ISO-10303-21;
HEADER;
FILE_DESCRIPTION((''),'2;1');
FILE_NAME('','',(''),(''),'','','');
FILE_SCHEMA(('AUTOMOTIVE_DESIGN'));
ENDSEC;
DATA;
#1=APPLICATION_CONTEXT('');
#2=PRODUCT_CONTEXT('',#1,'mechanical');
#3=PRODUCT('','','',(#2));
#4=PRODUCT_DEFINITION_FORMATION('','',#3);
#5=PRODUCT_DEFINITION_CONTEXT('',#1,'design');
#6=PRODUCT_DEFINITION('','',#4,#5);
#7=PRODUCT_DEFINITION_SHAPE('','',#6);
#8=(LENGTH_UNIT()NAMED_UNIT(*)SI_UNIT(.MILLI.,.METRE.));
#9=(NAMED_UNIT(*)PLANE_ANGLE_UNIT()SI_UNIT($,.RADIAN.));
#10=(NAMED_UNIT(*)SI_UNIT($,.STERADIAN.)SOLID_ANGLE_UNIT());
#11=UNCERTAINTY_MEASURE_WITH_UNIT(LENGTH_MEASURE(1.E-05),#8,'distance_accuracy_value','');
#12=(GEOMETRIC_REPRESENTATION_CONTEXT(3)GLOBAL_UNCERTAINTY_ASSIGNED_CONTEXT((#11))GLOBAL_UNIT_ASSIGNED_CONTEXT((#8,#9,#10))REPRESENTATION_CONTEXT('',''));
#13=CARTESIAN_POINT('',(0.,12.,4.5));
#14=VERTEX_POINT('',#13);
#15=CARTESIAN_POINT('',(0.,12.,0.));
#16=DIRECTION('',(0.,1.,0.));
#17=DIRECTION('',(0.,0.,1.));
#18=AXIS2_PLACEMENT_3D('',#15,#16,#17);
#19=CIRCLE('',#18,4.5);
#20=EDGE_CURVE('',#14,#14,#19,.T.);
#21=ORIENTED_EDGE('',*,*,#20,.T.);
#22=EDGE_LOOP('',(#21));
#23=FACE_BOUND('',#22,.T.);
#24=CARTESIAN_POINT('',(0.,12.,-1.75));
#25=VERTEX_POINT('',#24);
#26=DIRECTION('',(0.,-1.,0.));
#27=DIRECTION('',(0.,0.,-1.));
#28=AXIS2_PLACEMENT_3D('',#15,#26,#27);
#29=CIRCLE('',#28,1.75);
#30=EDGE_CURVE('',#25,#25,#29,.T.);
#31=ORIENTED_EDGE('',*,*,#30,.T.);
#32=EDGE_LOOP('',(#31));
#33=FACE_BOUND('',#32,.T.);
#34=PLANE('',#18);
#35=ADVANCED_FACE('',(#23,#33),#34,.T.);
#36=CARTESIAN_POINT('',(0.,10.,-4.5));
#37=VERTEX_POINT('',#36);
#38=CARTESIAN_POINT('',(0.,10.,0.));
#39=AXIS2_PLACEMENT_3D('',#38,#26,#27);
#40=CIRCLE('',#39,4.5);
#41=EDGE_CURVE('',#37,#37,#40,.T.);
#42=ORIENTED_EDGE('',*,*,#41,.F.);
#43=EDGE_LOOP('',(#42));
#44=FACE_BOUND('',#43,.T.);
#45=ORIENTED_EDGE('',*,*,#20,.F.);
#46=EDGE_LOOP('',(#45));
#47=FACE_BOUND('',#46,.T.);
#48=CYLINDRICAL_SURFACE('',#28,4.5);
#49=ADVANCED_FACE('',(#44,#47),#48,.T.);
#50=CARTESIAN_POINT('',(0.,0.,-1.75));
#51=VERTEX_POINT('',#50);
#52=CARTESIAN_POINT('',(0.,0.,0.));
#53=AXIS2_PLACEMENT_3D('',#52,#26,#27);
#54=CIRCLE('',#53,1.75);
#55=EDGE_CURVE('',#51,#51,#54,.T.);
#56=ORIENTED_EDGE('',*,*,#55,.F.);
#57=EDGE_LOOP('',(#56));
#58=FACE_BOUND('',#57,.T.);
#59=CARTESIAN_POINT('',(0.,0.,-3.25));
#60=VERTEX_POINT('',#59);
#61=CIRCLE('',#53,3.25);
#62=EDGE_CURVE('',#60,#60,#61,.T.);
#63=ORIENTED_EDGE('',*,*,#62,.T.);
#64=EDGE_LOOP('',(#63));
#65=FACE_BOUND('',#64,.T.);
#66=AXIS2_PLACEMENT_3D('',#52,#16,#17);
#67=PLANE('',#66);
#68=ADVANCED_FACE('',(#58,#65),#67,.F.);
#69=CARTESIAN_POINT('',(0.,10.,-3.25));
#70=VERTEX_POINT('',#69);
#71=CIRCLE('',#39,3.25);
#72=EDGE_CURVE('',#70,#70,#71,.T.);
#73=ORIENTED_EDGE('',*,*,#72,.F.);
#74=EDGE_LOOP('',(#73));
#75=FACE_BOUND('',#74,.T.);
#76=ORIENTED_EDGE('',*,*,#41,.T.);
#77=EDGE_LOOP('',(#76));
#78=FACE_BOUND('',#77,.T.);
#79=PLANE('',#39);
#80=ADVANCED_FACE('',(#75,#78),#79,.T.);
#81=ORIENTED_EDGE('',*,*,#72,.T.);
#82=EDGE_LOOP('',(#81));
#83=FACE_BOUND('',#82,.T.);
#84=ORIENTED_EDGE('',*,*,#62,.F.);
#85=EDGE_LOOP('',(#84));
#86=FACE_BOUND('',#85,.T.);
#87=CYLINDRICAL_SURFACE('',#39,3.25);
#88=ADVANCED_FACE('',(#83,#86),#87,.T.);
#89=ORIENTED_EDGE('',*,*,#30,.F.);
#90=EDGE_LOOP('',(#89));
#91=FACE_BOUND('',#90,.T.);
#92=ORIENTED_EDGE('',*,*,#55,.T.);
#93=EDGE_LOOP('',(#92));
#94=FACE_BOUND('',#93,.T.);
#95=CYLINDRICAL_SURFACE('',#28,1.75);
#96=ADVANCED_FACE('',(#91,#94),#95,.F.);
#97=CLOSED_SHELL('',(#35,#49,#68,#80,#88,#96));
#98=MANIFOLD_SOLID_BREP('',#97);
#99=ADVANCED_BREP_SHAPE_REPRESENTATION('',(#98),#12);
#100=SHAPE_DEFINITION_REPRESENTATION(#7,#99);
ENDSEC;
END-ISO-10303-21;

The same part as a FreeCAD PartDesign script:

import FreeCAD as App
import Part
import Sketcher

V = App.Vector

doc = App.newDocument("Part")
body = doc.addObject("PartDesign::Body", "Body")

# Sketch on XZ plane
sketch1 = body.newObject("Sketcher::SketchObject", "Sketch")
sketch1.AttachmentSupport = (doc.getObject("XZ_Plane"), [""])
sketch1.MapMode = "FlatFace"
sketch1.addGeometry(Part.Circle(V(0, 0, 0), V(0, 0, 1), 4.5), False)
sketch1.addConstraint([
    Sketcher.Constraint("Coincident", 0, 3, -1, 1),
    Sketcher.Constraint("Diameter", 0, 9.0),
])
pad1 = body.newObject("PartDesign::Pad", "Pad")
pad1.Profile = sketch1
pad1.Length = 12
pad1.Reversed = True

# Sketch on XZ plane
sketch2 = body.newObject("Sketcher::SketchObject", "Sketch001")
sketch2.AttachmentSupport = (doc.getObject("XZ_Plane"), [""])
sketch2.MapMode = "FlatFace"
sketch2.addGeometry([
    Part.Circle(V(0, 0, 0), V(0, 0, 1), 4.5),
    Part.Circle(V(0, 0, 0), V(0, 0, 1), 3.2),
], False)
sketch2.addConstraint([
    Sketcher.Constraint("Coincident", 0, 3, -1, 1),
    Sketcher.Constraint("Coincident", 1, 3, -1, 1),
    Sketcher.Constraint("Diameter", 0, 9.0),
    Sketcher.Constraint("Diameter", 1, 6.5),
])
pocket1 = body.newObject("PartDesign::Pocket", "Pocket")
pocket1.Profile = sketch2
pocket1.Length = 10

# Sketch on XZ plane
sketch3 = body.newObject("Sketcher::SketchObject", "Sketch002")
sketch3.AttachmentSupport = (doc.getObject("XZ_Plane"), [""])
sketch3.MapMode = "FlatFace"
sketch3.addGeometry(Part.Circle(V(0, 0, 0), V(0, 0, 1), 1.8), False)
sketch3.addConstraint([
    Sketcher.Constraint("Coincident", 0, 3, -1, 1),
    Sketcher.Constraint("Diameter", 0, 3.5),
])
pocket2 = body.newObject("PartDesign::Pocket", "Pocket001")
pocket2.Profile = sketch3
pocket2.Length = 12

doc.recompute()
